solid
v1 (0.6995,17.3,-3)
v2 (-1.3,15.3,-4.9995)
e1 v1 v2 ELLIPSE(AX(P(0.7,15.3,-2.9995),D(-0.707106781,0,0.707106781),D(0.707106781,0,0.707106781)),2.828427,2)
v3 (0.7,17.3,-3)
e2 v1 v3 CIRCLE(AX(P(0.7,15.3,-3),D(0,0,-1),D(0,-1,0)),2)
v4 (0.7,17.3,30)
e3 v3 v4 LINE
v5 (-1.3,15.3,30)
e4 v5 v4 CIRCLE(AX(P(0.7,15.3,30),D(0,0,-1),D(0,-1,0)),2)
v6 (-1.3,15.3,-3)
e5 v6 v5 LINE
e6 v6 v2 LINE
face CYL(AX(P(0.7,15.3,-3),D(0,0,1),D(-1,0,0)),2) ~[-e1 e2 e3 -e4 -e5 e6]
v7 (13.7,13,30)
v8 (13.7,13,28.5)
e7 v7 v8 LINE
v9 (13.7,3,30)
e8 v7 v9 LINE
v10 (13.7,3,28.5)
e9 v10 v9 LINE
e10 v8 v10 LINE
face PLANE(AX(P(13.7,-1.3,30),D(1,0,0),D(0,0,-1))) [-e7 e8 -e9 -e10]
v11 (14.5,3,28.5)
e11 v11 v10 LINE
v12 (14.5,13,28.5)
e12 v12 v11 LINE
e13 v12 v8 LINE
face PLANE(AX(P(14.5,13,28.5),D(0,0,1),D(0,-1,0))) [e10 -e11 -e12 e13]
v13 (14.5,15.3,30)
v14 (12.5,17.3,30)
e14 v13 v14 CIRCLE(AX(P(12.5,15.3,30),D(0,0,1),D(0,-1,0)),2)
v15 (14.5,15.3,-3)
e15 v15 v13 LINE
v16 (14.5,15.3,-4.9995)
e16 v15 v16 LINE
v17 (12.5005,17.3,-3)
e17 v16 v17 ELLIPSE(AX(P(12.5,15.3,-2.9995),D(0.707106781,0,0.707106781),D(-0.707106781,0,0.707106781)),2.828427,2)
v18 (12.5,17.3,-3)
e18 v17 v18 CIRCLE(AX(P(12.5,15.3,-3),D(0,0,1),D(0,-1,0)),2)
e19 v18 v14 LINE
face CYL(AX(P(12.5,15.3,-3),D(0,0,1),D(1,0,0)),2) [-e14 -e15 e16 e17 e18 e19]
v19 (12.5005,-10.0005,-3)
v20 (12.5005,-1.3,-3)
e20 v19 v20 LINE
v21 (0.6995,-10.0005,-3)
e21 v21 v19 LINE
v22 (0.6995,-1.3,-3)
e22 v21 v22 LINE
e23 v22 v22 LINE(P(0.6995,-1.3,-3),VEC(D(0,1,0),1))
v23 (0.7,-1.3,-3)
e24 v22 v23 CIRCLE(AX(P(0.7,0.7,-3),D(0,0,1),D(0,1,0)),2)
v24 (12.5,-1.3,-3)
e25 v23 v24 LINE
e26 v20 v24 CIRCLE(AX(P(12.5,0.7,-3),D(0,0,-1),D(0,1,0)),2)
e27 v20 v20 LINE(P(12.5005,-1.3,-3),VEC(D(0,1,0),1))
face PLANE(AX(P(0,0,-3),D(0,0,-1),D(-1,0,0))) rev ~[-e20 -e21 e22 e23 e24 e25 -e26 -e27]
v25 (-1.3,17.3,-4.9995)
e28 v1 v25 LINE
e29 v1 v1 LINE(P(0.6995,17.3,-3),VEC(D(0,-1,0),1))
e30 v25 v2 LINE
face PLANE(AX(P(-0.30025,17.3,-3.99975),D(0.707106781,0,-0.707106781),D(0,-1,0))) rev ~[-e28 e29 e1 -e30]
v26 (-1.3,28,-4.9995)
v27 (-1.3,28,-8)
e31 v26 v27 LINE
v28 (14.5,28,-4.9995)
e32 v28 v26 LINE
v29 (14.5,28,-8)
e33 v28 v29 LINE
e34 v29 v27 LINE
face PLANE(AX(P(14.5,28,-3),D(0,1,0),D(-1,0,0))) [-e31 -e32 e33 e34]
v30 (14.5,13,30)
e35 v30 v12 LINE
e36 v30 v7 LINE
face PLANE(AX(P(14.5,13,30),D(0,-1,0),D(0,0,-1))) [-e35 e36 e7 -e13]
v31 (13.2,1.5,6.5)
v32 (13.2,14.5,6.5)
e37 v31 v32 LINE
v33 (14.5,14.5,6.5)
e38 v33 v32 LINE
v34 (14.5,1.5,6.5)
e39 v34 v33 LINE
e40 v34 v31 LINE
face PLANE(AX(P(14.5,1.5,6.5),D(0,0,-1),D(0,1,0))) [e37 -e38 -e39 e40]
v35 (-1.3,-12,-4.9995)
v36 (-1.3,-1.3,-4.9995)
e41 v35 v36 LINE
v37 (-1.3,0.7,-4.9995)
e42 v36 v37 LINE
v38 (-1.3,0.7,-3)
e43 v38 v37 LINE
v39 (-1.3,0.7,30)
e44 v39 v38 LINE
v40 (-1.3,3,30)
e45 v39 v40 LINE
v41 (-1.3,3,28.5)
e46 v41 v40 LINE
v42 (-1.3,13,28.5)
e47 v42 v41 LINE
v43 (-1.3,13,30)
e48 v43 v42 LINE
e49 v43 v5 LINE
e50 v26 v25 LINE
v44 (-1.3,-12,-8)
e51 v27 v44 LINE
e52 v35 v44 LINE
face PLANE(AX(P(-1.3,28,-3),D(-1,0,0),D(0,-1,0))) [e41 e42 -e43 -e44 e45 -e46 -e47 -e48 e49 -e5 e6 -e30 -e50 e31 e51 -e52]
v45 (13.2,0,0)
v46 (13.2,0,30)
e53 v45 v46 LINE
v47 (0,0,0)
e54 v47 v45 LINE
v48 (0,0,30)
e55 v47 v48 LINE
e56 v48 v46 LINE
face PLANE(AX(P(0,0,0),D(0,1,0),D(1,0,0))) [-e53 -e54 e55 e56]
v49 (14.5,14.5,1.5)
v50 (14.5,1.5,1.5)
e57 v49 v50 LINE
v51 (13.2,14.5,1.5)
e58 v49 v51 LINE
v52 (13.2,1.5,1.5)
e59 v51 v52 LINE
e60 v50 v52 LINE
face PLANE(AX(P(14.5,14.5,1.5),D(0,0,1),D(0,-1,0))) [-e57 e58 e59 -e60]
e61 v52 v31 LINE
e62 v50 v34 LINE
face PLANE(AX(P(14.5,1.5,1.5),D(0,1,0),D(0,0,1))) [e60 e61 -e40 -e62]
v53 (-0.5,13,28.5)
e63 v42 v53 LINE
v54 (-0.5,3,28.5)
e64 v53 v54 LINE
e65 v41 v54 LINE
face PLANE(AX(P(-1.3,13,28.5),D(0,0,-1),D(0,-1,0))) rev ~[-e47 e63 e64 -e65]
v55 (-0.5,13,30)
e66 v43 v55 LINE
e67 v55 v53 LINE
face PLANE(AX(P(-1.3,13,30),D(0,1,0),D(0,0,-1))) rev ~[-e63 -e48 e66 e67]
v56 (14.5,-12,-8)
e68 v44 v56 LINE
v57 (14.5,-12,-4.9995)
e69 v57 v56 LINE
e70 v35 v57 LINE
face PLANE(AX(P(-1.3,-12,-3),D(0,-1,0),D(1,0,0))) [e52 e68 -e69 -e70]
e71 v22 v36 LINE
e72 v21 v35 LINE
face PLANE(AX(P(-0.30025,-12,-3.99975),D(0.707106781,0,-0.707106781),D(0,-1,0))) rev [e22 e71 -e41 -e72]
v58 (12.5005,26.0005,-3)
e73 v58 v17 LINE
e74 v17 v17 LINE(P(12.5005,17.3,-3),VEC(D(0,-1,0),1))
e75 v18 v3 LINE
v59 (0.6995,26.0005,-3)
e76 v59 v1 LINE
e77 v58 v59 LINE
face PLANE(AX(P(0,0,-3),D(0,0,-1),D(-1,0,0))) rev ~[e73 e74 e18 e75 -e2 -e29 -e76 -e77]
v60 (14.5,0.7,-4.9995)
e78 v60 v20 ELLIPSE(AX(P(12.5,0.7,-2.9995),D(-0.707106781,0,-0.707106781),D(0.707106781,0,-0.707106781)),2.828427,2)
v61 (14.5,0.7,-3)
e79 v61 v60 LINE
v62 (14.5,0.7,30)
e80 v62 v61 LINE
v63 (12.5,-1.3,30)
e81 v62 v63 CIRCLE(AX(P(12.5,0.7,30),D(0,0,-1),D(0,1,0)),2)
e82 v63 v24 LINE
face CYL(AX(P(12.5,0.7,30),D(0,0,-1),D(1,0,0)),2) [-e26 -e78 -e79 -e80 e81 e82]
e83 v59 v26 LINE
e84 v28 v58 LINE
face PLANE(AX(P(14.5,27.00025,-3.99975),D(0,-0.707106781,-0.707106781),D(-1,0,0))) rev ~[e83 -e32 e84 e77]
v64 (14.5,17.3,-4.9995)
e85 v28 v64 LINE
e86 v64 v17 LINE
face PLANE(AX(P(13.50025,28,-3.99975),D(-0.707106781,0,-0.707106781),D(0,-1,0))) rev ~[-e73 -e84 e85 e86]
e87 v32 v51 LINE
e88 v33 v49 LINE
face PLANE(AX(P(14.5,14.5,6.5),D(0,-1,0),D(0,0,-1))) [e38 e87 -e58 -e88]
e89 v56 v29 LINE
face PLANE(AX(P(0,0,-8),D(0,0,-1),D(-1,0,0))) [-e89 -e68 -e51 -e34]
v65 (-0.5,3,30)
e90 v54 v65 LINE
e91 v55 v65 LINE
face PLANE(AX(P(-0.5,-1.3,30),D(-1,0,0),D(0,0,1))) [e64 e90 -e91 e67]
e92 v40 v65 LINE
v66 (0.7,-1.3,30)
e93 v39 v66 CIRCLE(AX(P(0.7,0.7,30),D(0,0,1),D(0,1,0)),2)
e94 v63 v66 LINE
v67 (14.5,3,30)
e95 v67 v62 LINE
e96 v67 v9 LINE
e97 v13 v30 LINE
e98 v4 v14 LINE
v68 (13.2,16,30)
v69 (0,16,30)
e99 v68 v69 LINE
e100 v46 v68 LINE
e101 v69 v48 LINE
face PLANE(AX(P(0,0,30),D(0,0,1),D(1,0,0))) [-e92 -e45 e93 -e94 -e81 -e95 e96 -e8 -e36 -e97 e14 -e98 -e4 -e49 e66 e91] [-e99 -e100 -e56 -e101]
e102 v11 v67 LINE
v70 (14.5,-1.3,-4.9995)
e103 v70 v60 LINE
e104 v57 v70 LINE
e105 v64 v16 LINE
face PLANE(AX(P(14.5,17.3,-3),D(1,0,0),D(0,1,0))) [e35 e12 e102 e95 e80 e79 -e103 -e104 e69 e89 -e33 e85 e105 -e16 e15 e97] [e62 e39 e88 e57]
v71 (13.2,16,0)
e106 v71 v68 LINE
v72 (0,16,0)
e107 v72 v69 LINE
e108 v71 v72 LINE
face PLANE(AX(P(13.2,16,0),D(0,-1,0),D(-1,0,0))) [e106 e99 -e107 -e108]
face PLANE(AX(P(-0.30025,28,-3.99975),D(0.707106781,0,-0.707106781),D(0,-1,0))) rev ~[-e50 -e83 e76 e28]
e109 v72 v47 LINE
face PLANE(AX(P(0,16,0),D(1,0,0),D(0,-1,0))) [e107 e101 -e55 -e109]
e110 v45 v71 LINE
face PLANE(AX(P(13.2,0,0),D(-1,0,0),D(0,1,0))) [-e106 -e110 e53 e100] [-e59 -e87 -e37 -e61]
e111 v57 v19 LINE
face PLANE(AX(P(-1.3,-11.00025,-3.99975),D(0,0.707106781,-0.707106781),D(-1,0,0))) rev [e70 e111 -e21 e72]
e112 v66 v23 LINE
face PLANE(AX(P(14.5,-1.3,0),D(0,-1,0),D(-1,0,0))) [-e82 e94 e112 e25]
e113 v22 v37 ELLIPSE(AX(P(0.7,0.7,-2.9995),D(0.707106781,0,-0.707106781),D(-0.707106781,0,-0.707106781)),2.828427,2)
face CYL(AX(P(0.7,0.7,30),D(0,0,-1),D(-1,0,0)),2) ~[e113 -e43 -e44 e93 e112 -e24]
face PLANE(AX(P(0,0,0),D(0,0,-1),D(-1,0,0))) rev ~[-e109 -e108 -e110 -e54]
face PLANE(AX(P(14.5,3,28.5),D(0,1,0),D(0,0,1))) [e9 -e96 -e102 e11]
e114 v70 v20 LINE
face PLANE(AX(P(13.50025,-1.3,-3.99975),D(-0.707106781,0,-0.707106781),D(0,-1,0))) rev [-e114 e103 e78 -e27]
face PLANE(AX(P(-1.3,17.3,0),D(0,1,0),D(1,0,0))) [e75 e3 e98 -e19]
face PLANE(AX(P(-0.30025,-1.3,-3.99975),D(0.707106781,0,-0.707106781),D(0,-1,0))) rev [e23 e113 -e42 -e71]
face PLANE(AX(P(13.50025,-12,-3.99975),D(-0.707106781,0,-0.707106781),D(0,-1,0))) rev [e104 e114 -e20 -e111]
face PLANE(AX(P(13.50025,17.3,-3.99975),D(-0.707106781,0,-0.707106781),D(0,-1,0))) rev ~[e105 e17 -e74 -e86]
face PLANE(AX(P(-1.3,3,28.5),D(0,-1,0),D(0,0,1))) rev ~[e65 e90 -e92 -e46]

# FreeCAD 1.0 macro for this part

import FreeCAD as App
import Part
import Sketcher
from FreeCAD import Vector
Q = App.Units.Quantity


def edges_at(feature, points):
    """Names of the edges that pass closest to the given points."""
    edges = feature.Shape.Edges
    near = lambda p: min(range(len(edges)), key=lambda i: edges[i].distToShape(Part.Vertex(*p))[0])
    return sorted({f"Edge{near(p) + 1}" for p in points})


def add_polygon(sketch, points):
    """Adds a closed chain of lines whose ends are joined by coincident constraints."""
    first, n = sketch.GeometryCount, len(points)
    for a, b in zip(points, points[1:] + points[:1]):
        sketch.addGeometry(Part.LineSegment(App.Vector(*a, 0), App.Vector(*b, 0)), False)
    for i in range(n):
        sketch.addConstraint(Sketcher.Constraint("Coincident", first + i, 2, first + (i + 1) % n, 1))

doc = App.newDocument("Part")
body = doc.addObject("PartDesign::Body", "Body")

# Sketch on XY plane
sketch1 = body.newObject("Sketcher::SketchObject", "Sketch")
sketch1.AttachmentSupport = (doc.getObject("XY_Plane"), [""])
sketch1.MapMode = "FlatFace"
add_polygon(sketch1, [(14.5, -1.3), (14.5, 17.3), (-1.3, 17.3), (-1.3, -1.3)])  # lines 0-3
add_polygon(sketch1, [(13.2, 0), (0, 0), (0, 16), (13.2, 16)])  # lines 4-7
sketch1.addConstraint(Sketcher.Constraint("Vertical", 0))
sketch1.addConstraint(Sketcher.Constraint("Horizontal", 1))
sketch1.addConstraint(Sketcher.Constraint("Vertical", 2))
sketch1.addConstraint(Sketcher.Constraint("Horizontal", 3))
sketch1.addConstraint(Sketcher.Constraint("Horizontal", 4))
sketch1.addConstraint(Sketcher.Constraint("Vertical", 5))
sketch1.addConstraint(Sketcher.Constraint("Horizontal", 6))
sketch1.addConstraint(Sketcher.Constraint("Vertical", 7))
sketch1.addConstraint(Sketcher.Constraint("Coincident", 4, 2, -1, 1))
sketch1.addConstraint(Sketcher.Constraint("DistanceY", 5, 1, 5, 2, Q("16 mm")))
sketch1.addConstraint(Sketcher.Constraint("DistanceX", 4, 2, 4, 1, Q("13.2 mm")))
sketch1.addConstraint(Sketcher.Constraint("DistanceX", 1, 2, -1, 1, Q("1.3 mm")))
sketch1.addConstraint(Sketcher.Constraint("DistanceY", 2, 2, -1, 1, Q("1.3 mm")))
sketch1.addConstraint(Sketcher.Constraint("DistanceY", 5, 2, 1, 2, Q("1.3 mm")))
sketch1.addConstraint(Sketcher.Constraint("DistanceX", 6, 2, 0, 2, Q("1.3 mm")))
pad1 = body.newObject("PartDesign::Pad", "Pad")
pad1.Profile = sketch1
pad1.Length = 30

# Sketch on XY plane
sketch2 = body.newObject("Sketcher::SketchObject", "Sketch001")
sketch2.AttachmentSupport = (doc.getObject("XY_Plane"), [""])
sketch2.MapMode = "FlatFace"
add_polygon(sketch2, [(14.5, 17.3), (14.5, -1.3), (-1.3, -1.3), (-1.3, 17.3)])  # lines 0-3
sketch2.addConstraint(Sketcher.Constraint("Vertical", 0))
sketch2.addConstraint(Sketcher.Constraint("Horizontal", 1))
sketch2.addConstraint(Sketcher.Constraint("Vertical", 2))
sketch2.addConstraint(Sketcher.Constraint("Horizontal", 3))
sketch2.addConstraint(Sketcher.Constraint("DistanceX", 1, 2, 1, 1, Q("15.8 mm")))
sketch2.addConstraint(Sketcher.Constraint("DistanceY", 0, 2, 0, 1, Q("18.6 mm")))
sketch2.addConstraint(Sketcher.Constraint("DistanceX", -1, 1, 0, 2, Q("14.5 mm")))
sketch2.addConstraint(Sketcher.Constraint("DistanceY", 0, 2, -1, 1, Q("1.3 mm")))
pad2 = body.newObject("PartDesign::Pad", "Pad001")
pad2.Profile = sketch2
pad2.Length = 3
pad2.Reversed = True

# Sketch on YZ plane
sketch3 = body.newObject("Sketcher::SketchObject", "Sketch002")
sketch3.AttachmentSupport = (doc.getObject("YZ_Plane"), [""])
sketch3.MapMode = "FlatFace"
sketch3.AttachmentOffset = App.Placement(Vector(0, 0, 14.5), App.Rotation())
add_polygon(sketch3, [(1.5, 6.5), (1.5, 1.5), (14.5, 1.5), (14.5, 6.5)])  # lines 0-3
sketch3.addConstraint(Sketcher.Constraint("Vertical", 0))
sketch3.addConstraint(Sketcher.Constraint("Horizontal", 1))
sketch3.addConstraint(Sketcher.Constraint("Vertical", 2))
sketch3.addConstraint(Sketcher.Constraint("Horizontal", 3))
sketch3.addConstraint(Sketcher.Constraint("DistanceX", 1, 1, 1, 2, Q("13 mm")))
sketch3.addConstraint(Sketcher.Constraint("DistanceY", 0, 2, 0, 1, Q("5 mm")))
sketch3.addConstraint(Sketcher.Constraint("DistanceX", -1, 1, 0, 2, Q("1.5 mm")))
sketch3.addConstraint(Sketcher.Constraint("DistanceY", -1, 1, 0, 2, Q("1.5 mm")))
pocket1 = body.newObject("PartDesign::Pocket", "Pocket")
pocket1.Profile = sketch3
pocket1.Length = 1.3

# Sketch on YZ plane
sketch4 = body.newObject("Sketcher::SketchObject", "Sketch003")
sketch4.AttachmentSupport = (doc.getObject("YZ_Plane"), [""])
sketch4.MapMode = "FlatFace"
sketch4.AttachmentOffset = App.Placement(Vector(0, 0, 14.5), App.Rotation())
add_polygon(sketch4, [(3, 28.5), (13, 28.5), (13, 30), (3, 30)])  # lines 0-3
sketch4.addConstraint(Sketcher.Constraint("Horizontal", 0))
sketch4.addConstraint(Sketcher.Constraint("Vertical", 1))
sketch4.addConstraint(Sketcher.Constraint("Horizontal", 2))
sketch4.addConstraint(Sketcher.Constraint("Vertical", 3))
sketch4.addConstraint(Sketcher.Constraint("DistanceX", 0, 1, 0, 2, Q("10 mm")))
sketch4.addConstraint(Sketcher.Constraint("DistanceY", 1, 1, 1, 2, Q("1.5 mm")))
sketch4.addConstraint(Sketcher.Constraint("DistanceX", -1, 1, 0, 2, Q("13 mm")))
sketch4.addConstraint(Sketcher.Constraint("DistanceY", -1, 1, 1, 2, Q("30 mm")))
pocket2 = body.newObject("PartDesign::Pocket", "Pocket001")
pocket2.Profile = sketch4
pocket2.Length = 0.8

# Sketch on YZ plane
sketch5 = body.newObject("Sketcher::SketchObject", "Sketch004")
sketch5.AttachmentSupport = (doc.getObject("YZ_Plane"), [""])
sketch5.MapMode = "FlatFace"
sketch5.AttachmentOffset = App.Placement(Vector(0, 0, -1.3), App.Rotation())
add_polygon(sketch5, [(3, 30), (13, 30), (13, 28.5), (3, 28.5)])  # lines 0-3
sketch5.addConstraint(Sketcher.Constraint("Horizontal", 0))
sketch5.addConstraint(Sketcher.Constraint("Vertical", 1))
sketch5.addConstraint(Sketcher.Constraint("Horizontal", 2))
sketch5.addConstraint(Sketcher.Constraint("Vertical", 3))
sketch5.addConstraint(Sketcher.Constraint("DistanceX", 0, 1, 0, 2, Q("10 mm")))
sketch5.addConstraint(Sketcher.Constraint("DistanceY", 1, 2, 1, 1, Q("1.5 mm")))
sketch5.addConstraint(Sketcher.Constraint("DistanceX", -1, 1, 0, 2, Q("13 mm")))
sketch5.addConstraint(Sketcher.Constraint("DistanceY", -1, 1, 0, 2, Q("30 mm")))
pocket3 = body.newObject("PartDesign::Pocket", "Pocket002")
pocket3.Profile = sketch5
pocket3.Length = 0.8
pocket3.Reversed = True

# Sketch on XY plane
sketch6 = body.newObject("Sketcher::SketchObject", "Sketch005")
sketch6.AttachmentSupport = (doc.getObject("XY_Plane"), [""])
sketch6.MapMode = "FlatFace"
sketch6.AttachmentOffset = App.Placement(Vector(0, 0, -3), App.Rotation())
add_polygon(sketch6, [(-1.3, 28), (14.5, 28), (14.5, -12), (-1.3, -12)])  # lines 0-3
sketch6.addConstraint(Sketcher.Constraint("Horizontal", 0))
sketch6.addConstraint(Sketcher.Constraint("Vertical", 1))
sketch6.addConstraint(Sketcher.Constraint("Horizontal", 2))
sketch6.addConstraint(Sketcher.Constraint("Vertical", 3))
sketch6.addConstraint(Sketcher.Constraint("DistanceY", 1, 2, 1, 1, Q("40 mm")))
sketch6.addConstraint(Sketcher.Constraint("DistanceX", 0, 1, 0, 2, Q("15.8 mm")))
sketch6.addConstraint(Sketcher.Constraint("DistanceY", -1, 1, 0, 2, Q("28 mm")))
sketch6.addConstraint(Sketcher.Constraint("DistanceX", -1, 1, 0, 2, Q("14.5 mm")))
pad3 = body.newObject("PartDesign::Pad", "Pad002")
pad3.Profile = sketch6
pad3.Length = 5
pad3.Reversed = True
doc.recompute()

fillet = body.newObject("PartDesign::Fillet", "Fillet")
fillet.Base = (pad3, edges_at(pad3, [
    (14.5, 17.3, 13.5),
    (-1.3, 17.3, 13.5),
    (14.5, -1.3, 13.5),
    (-1.3, -1.3, 13.5),
]))
fillet.Radius = 2
doc.recompute()

chamfer = body.newObject("PartDesign::Chamfer", "Chamfer")
chamfer.Base = (fillet, edges_at(fillet, [
    (-1.3, 16.3, -3),
    (14.5, 16.3, -3),
    (-1.3, -0.3, -3),
    (14.5, -0.3, -3),
    (6.6, -12, -3),
    (6.6, 28, -3),
]))
chamfer.Size = 2

doc.recompute()
